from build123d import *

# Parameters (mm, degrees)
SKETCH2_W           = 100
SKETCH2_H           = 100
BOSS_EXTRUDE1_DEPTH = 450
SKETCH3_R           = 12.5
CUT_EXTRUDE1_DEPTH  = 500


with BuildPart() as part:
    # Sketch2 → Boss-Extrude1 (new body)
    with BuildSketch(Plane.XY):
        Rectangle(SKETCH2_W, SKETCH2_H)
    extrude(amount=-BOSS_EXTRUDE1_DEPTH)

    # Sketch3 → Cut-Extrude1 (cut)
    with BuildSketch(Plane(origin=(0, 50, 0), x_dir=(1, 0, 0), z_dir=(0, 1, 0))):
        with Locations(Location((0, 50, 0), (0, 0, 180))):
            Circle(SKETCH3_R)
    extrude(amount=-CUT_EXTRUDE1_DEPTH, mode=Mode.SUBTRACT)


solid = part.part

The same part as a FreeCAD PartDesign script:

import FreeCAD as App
import Part
import Sketcher
from FreeCAD import Vector

doc = App.newDocument("Part")
body = doc.addObject("PartDesign::Body", "Body")

# Sketch on XY plane
sketch1 = doc.addObject("Sketcher::SketchObject", "Sketch")
body.addObject(sketch1)
sketch1.AttachmentSupport = (doc.XY_Plane, [""])
sketch1.MapMode = "FlatFace"
sketch1.addGeometry(Part.LineSegment(Vector(-50, 50, 0), Vector(-50, -50, 0)), False)
sketch1.addGeometry(Part.LineSegment(Vector(-50, -50, 0), Vector(50, -50, 0)), False)
sketch1.addGeometry(Part.LineSegment(Vector(50, -50, 0), Vector(50, 50, 0)), False)
sketch1.addGeometry(Part.LineSegment(Vector(50, 50, 0), Vector(-50, 50, 0)), False)
sketch1.addConstraint(Sketcher.Constraint("Coincident", 0, 2, 1, 1))
sketch1.addConstraint(Sketcher.Constraint("Coincident", 1, 2, 2, 1))
sketch1.addConstraint(Sketcher.Constraint("Coincident", 2, 2, 3, 1))
sketch1.addConstraint(Sketcher.Constraint("Coincident", 3, 2, 0, 1))
sketch1.addConstraint(Sketcher.Constraint("Vertical", 0))
sketch1.addConstraint(Sketcher.Constraint("Horizontal", 1))
sketch1.addConstraint(Sketcher.Constraint("Vertical", 2))
sketch1.addConstraint(Sketcher.Constraint("Horizontal", 3))
sketch1.addConstraint(Sketcher.Constraint("Symmetric", 0, 2, 2, 2, -1, 1))
sketch1.addConstraint(Sketcher.Constraint("Equal", 3, 0))
sketch1.addConstraint(Sketcher.Constraint("DistanceX", 1, 1, 1, 2, 100.0))
pad1 = doc.addObject("PartDesign::Pad", "Pad")
body.addObject(pad1)
pad1.Profile = sketch1
pad1.Length = 450
pad1.Reversed = True

# Sketch on XZ plane
sketch2 = doc.addObject("Sketcher::SketchObject", "Sketch001")
body.addObject(sketch2)
sketch2.AttachmentSupport = (doc.XZ_Plane, [""])
sketch2.MapMode = "FlatFace"
sketch2.AttachmentOffset = App.Placement(Vector(0, 0, -50), App.Rotation())
sketch2.addGeometry(Part.Circle(Vector(0, -50, 0), Vector(0, 0, 1), 12.5), False)
sketch2.addConstraint(Sketcher.Constraint("PointOnObject", 0, 3, -2))
sketch2.addConstraint(Sketcher.Constraint("Diameter", 0, 25.0))
sketch2.addConstraint(Sketcher.Constraint("DistanceY", 0, 3, -1, 1, 50.0))
pocket1 = doc.addObject("PartDesign::Pocket", "Pocket")
body.addObject(pocket1)
pocket1.Profile = sketch2
pocket1.Length = 500
pocket1.Reversed = True

doc.recompute()
